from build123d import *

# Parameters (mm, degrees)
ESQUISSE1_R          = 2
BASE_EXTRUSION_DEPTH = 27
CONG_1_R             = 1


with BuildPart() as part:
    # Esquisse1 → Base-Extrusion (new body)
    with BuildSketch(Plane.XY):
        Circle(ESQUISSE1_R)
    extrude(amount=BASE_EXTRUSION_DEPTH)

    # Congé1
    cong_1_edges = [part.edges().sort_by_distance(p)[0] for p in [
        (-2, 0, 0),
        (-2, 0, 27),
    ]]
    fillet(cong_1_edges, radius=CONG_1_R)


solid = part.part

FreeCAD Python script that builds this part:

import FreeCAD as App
import Part
import Sketcher


def edges_at(feature, points):
    """Names of the edges that pass closest to the given points."""
    edges = feature.Shape.Edges
    near = lambda p: min(range(len(edges)), key=lambda i: edges[i].distToShape(Part.Vertex(*p))[0])
    return sorted({f"Edge{near(p) + 1}" for p in points})

doc = App.newDocument("Part")
body = doc.addObject("PartDesign::Body", "Body")

# Sketch on XY plane
sketch1 = body.newObject("Sketcher::SketchObject", "Sketch")
sketch1.AttachmentSupport = (doc.getObject("XY_Plane"), [""])
sketch1.MapMode = "FlatFace"
sketch1.addGeometry(Part.Circle(App.Vector(0, 0, 0), App.Vector(0, 0, 1), 2), False)
sketch1.addConstraint(Sketcher.Constraint("Coincident", 0, 3, -1, 1))
sketch1.addConstraint(Sketcher.Constraint("Diameter", 0, 4.0))
pad1 = body.newObject("PartDesign::Pad", "Pad")
pad1.Profile = sketch1
pad1.Length = 27
doc.recompute()

fillet = body.newObject("PartDesign::Fillet", "Fillet")
fillet.Base = (pad1, edges_at(pad1, [(-2, 0, 0), (-2, 0, 27)]))
fillet.Radius = 1

doc.recompute()
